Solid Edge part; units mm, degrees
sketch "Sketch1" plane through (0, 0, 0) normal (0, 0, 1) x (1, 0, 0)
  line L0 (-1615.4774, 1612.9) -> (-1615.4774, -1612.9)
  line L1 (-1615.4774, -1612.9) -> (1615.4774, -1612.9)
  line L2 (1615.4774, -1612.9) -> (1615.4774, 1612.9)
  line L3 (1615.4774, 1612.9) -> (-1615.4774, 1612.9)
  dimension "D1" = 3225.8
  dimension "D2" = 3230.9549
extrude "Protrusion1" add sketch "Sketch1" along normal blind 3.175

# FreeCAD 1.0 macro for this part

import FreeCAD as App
import Part
import Sketcher

V = App.Vector
Q = App.Units.Quantity


def add_polygon(sketch, points):
    """Adds a closed chain of lines whose ends are joined by coincident constraints."""
    first, n = sketch.GeometryCount, len(points)
    for a, b in zip(points, points[1:] + points[:1]):
        sketch.addGeometry(Part.LineSegment(App.Vector(*a, 0), App.Vector(*b, 0)), False)
    for i in range(n):
        sketch.addConstraint(Sketcher.Constraint("Coincident", first + i, 2, first + (i + 1) % n, 1))

doc = App.newDocument("Part")
body = doc.addObject("PartDesign::Body", "Body")

sketch1 = body.newObject("Sketcher::SketchObject", "Sketch")
sketch1.AttachmentSupport = (doc.getObject("XY_Plane"), [""])
sketch1.MapMode = "FlatFace"
add_polygon(sketch1, [(1615.4774, 1612.9), (-1615.4774, 1612.9), (-1615.4774, -1612.9), (1615.4774, -1612.9)])
sketch1.addConstraint(Sketcher.Constraint("Horizontal", 0))
sketch1.addConstraint(Sketcher.Constraint("Vertical", 1))
sketch1.addConstraint(Sketcher.Constraint("Horizontal", 2))
sketch1.addConstraint(Sketcher.Constraint("Vertical", 3))
sketch1.addConstraint(Sketcher.Constraint("Symmetric", 0, 2, 2, 2, -1, 1))
sketch1.addConstraint(Sketcher.Constraint("DistanceY", 1, 2, 1, 1, Q("127 in")))
sketch1.addConstraint(Sketcher.Constraint("DistanceX", 0, 2, -1, 1, Q("1615.4774 mm")))
pad1 = body.newObject("PartDesign::Pad", "Pad")
pad1.Profile = sketch1
pad1.Length = Q("0.125 in")

doc.recompute()
